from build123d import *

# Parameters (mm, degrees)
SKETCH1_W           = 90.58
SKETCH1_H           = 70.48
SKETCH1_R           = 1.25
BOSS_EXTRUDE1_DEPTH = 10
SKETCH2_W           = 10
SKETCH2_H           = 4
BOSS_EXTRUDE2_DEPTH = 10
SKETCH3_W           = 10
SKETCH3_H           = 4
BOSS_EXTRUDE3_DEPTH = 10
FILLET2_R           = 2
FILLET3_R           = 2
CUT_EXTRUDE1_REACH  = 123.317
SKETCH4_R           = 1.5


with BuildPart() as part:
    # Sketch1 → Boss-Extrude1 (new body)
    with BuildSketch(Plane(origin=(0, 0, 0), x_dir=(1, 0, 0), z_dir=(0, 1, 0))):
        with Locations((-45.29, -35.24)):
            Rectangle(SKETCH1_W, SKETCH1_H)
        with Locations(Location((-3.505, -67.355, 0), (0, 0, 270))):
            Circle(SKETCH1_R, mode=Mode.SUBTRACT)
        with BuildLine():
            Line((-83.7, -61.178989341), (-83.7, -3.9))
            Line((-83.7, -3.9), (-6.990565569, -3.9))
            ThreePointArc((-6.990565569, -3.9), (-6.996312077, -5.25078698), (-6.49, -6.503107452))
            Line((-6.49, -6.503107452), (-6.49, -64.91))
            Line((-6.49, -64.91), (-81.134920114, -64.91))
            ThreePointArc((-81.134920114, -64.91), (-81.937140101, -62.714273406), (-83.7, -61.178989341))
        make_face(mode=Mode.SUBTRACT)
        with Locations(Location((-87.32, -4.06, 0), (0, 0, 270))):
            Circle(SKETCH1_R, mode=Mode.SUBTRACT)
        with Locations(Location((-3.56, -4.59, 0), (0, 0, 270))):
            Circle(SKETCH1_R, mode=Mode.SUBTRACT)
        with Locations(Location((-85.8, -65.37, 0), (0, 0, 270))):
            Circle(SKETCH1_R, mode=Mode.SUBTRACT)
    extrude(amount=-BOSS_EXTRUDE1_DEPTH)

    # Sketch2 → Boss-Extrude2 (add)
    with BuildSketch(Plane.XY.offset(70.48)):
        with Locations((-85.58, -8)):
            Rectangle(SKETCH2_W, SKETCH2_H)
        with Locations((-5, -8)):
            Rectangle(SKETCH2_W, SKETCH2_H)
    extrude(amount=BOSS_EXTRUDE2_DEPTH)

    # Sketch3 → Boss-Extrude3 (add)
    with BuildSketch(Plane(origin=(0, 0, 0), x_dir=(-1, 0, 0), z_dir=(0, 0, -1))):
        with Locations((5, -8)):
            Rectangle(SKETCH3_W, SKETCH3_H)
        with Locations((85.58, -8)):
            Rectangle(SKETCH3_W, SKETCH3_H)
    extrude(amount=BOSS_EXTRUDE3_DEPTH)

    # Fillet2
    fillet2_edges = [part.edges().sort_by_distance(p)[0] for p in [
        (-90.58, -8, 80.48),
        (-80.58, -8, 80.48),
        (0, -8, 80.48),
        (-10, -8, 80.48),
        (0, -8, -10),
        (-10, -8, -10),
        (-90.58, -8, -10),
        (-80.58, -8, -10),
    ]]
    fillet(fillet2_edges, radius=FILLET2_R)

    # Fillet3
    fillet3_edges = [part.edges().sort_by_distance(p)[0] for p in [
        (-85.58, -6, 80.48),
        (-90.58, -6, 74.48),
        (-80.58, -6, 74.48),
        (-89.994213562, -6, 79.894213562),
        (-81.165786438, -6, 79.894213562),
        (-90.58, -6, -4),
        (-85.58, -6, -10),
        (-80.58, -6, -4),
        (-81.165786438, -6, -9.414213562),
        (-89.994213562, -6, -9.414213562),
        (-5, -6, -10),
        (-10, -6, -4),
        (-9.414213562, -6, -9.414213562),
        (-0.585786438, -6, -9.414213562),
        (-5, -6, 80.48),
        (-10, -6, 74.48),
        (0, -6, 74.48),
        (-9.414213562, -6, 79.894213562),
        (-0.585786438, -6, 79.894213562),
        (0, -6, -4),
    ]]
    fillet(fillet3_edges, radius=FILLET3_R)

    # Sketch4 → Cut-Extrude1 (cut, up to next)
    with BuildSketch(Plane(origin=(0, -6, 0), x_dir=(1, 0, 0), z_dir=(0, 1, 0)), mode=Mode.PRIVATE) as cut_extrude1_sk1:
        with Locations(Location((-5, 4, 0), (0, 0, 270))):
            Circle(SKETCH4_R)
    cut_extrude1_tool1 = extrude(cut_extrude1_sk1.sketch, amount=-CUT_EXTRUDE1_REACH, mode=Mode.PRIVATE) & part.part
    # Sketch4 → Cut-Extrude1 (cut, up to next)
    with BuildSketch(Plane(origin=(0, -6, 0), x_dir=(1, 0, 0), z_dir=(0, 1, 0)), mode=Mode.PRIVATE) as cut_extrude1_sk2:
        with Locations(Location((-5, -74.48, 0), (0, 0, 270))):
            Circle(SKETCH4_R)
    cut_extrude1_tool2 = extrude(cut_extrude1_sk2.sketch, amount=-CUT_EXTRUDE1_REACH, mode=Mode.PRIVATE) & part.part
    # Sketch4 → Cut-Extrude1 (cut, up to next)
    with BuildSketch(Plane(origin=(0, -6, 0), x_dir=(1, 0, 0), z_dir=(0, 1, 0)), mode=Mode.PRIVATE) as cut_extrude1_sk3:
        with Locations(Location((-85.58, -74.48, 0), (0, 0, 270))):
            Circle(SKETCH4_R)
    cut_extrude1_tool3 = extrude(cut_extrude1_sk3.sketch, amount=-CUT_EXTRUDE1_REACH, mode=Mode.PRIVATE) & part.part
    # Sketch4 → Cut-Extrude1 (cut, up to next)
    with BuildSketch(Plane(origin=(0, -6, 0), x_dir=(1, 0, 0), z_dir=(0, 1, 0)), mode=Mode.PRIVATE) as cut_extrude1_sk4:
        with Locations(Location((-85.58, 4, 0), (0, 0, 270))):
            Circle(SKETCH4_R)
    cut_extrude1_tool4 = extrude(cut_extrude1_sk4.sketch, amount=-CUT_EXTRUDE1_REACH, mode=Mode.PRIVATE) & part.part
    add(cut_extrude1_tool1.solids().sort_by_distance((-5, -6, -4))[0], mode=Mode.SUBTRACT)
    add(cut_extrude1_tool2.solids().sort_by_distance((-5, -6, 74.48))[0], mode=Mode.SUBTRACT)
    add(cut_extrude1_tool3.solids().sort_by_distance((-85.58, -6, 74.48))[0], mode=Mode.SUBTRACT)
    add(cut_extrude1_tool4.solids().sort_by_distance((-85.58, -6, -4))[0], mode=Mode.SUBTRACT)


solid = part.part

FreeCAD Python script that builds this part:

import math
import FreeCAD as App
import Part
import Sketcher

V = App.Vector


def edges_at(feature, points):
    """Names of the edges that pass closest to the given points."""
    edges = feature.Shape.Edges
    near = lambda p: min(range(len(edges)), key=lambda i: edges[i].distToShape(Part.Vertex(*p))[0])
    return sorted({f"Edge{near(p) + 1}" for p in points})


def add_polygon(sketch, points):
    """Adds a closed chain of lines whose ends are joined by coincident constraints."""
    first, n = sketch.GeometryCount, len(points)
    for a, b in zip(points, points[1:] + points[:1]):
        sketch.addGeometry(Part.LineSegment(App.Vector(*a, 0), App.Vector(*b, 0)), False)
    for i in range(n):
        sketch.addConstraint(Sketcher.Constraint("Coincident", first + i, 2, first + (i + 1) % n, 1))

doc = App.newDocument("Part")
body = doc.addObject("PartDesign::Body", "Body")

# Sketch on XZ plane
sketch1 = body.newObject("Sketcher::SketchObject", "Sketch")
sketch1.AttachmentSupport = (doc.getObject("XZ_Plane"), [""])
sketch1.MapMode = "FlatFace"
add_polygon(sketch1, [(-90.6, 0), (-90.6, 70.5), (0, 70.5), (0, 0)])  # lines 0-3
sketch1.addGeometry(Part.Circle(V(-85.8, 65.4, 0), V(0, 0, 1), 1.2), False)  # 4
sketch1.addGeometry(Part.Circle(V(-3.5, 67.4, 0), V(0, 0, 1), 1.2), False)  # 5
sketch1.addGeometry(Part.Circle(V(-87.3, 4.1, 0), V(0, 0, 1), 1.2), False)  # 6
sketch1.addGeometry(Part.ArcOfCircle(Part.Circle(V(-85.8, 65.4, 0), V(0, 0, 1), 4.7), math.radians(-63), math.radians(-6)), False)  # 7
sketch1.addGeometry(Part.LineSegment(V(-83.7, 61.2, 0), V(-83.7, 3.9, 0)), False)  # 8
sketch1.addGeometry(Part.LineSegment(V(-83.7, 3.9, 0), V(-7, 3.9, 0)), False)  # 9
sketch1.addGeometry(Part.ArcOfCircle(Part.Circle(V(-3.6, 4.6, 0), V(0, 0, 1), 3.5), math.radians(147), math.radians(191)), False)  # 10
sketch1.addGeometry(Part.LineSegment(V(-6.5, 6.5, 0), V(-6.5, 64.9, 0)), False)  # 11
sketch1.addGeometry(Part.LineSegment(V(-6.5, 64.9, 0), V(-81.1, 64.9, 0)), False)  # 12
sketch1.addGeometry(Part.Circle(V(-3.6, 4.6, 0), V(0, 0, 1), 1.2), False)  # 13
sketch1.addConstraint([
    Sketcher.Constraint("Coincident", 7, 1, 8, 1),
    Sketcher.Constraint("Coincident", 8, 2, 9, 1),
    Sketcher.Constraint("Coincident", 9, 2, 10, 2),
    Sketcher.Constraint("Coincident", 10, 1, 11, 1),
    Sketcher.Constraint("Coincident", 11, 2, 12, 1),
    Sketcher.Constraint("Coincident", 12, 2, 7, 2),
    Sketcher.Constraint("Vertical", 0),
    Sketcher.Constraint("Horizontal", 1),
    Sketcher.Constraint("Vertical", 2),
    Sketcher.Constraint("Horizontal", 3),
    Sketcher.Constraint("Vertical", 8),
    Sketcher.Constraint("Horizontal", 9),
    Sketcher.Constraint("Vertical", 11),
    Sketcher.Constraint("Horizontal", 12),
    Sketcher.Constraint("Coincident", 2, 2, -1, 1),
    Sketcher.Constraint("Coincident", 7, 3, 4, 3),
    Sketcher.Constraint("Coincident", 13, 3, 10, 3),
    Sketcher.Constraint("Equal", 4, 5),
    Sketcher.Constraint("Equal", 5, 6),
    Sketcher.Constraint("Equal", 6, 13),
    Sketcher.Constraint("Diameter", 4, 2.5),
    Sketcher.Constraint("DistanceX", 1, 1, 1, 2, 90.58),
    Sketcher.Constraint("DistanceY", 0, 1, 0, 2, 70.48),
    Sketcher.Constraint("DistanceX", 4, 3, -1, 1, 85.8),
    Sketcher.Constraint("DistanceX", 7, 1, -1, 1, 83.7),
    Sketcher.Constraint("DistanceY", -1, 1, 8, 2, 3.9),
    Sketcher.Constraint("DistanceY", -1, 1, 4, 3, 65.37),
    Sketcher.Constraint("DistanceX", 6, 3, -1, 1, 87.32),
    Sketcher.Constraint("DistanceY", -1, 1, 6, 3, 4.06),
    Sketcher.Constraint("DistanceX", 10, 3, -1, 1, 3.56),
    Sketcher.Constraint("DistanceY", -1, 1, 10, 3, 4.59),
    Sketcher.Constraint("DistanceX", 10, 1, -1, 1, 6.49),
    Sketcher.Constraint("DistanceY", -1, 1, 11, 2, 64.91),
    Sketcher.Constraint("Radius", 10, 3.499269),
    Sketcher.Constraint("DistanceX", 5, 3, -1, 1, 3.505),
    Sketcher.Constraint("DistanceY", -1, 1, 5, 3, 67.355),
    Sketcher.Constraint("Radius", 7, 4.687704),
])
pad1 = body.newObject("PartDesign::Pad", "Pad")
pad1.Profile = sketch1
pad1.Length = 10

# Sketch on XY plane
sketch2 = body.newObject("Sketcher::SketchObject", "Sketch001")
sketch2.AttachmentSupport = (doc.getObject("XY_Plane"), [""])
sketch2.MapMode = "FlatFace"
sketch2.AttachmentOffset = App.Placement(V(0, 0, 70.48), App.Rotation())
add_polygon(sketch2, [(-90.6, -6), (-90.6, -10), (-80.6, -10), (-80.6, -6)])  # lines 0-3
add_polygon(sketch2, [(-10, -6), (-10, -10), (0, -10), (0, -6)])  # lines 4-7
sketch2.addConstraint([
    Sketcher.Constraint("Vertical", 0),
    Sketcher.Constraint("Horizontal", 1),
    Sketcher.Constraint("Vertical", 2),
    Sketcher.Constraint("Horizontal", 3),
    Sketcher.Constraint("Vertical", 4),
    Sketcher.Constraint("Horizontal", 5),
    Sketcher.Constraint("Vertical", 6),
    Sketcher.Constraint("Horizontal", 7),
    Sketcher.Constraint("PointOnObject", 5, 2, -2),
    Sketcher.Constraint("Horizontal", 1, 2, 4, 2),
    Sketcher.Constraint("Horizontal", 3, 2, 6, 2),
    Sketcher.Constraint("Equal", 3, 5),
    Sketcher.Constraint("DistanceX", 1, 1, 1, 2, 10.0),
    Sketcher.Constraint("DistanceY", 0, 2, 0, 1, 4.0),
    Sketcher.Constraint("DistanceY", 0, 2, -1, 1, 10.0),
    Sketcher.Constraint("DistanceX", 0, 2, -1, 1, 90.58),
])
pad2 = body.newObject("PartDesign::Pad", "Pad001")
pad2.Profile = sketch2
pad2.Length = 10

# Sketch on XY plane
sketch3 = body.newObject("Sketcher::SketchObject", "Sketch002")
sketch3.AttachmentSupport = (doc.getObject("XY_Plane"), [""])
sketch3.MapMode = "FlatFace"
add_polygon(sketch3, [(0, -6), (0, -10), (-10, -10), (-10, -6)])  # lines 0-3
add_polygon(sketch3, [(-80.6, -6), (-80.6, -10), (-90.6, -10), (-90.6, -6)])  # lines 4-7
sketch3.addConstraint([
    Sketcher.Constraint("Vertical", 0),
    Sketcher.Constraint("Horizontal", 1),
    Sketcher.Constraint("Vertical", 2),
    Sketcher.Constraint("Horizontal", 3),
    Sketcher.Constraint("Vertical", 4),
    Sketcher.Constraint("Horizontal", 5),
    Sketcher.Constraint("Vertical", 6),
    Sketcher.Constraint("Horizontal", 7),
    Sketcher.Constraint("PointOnObject", 0, 2, -2),
    Sketcher.Constraint("Horizontal", 1, 2, 4, 2),
    Sketcher.Constraint("Horizontal", 3, 2, 6, 2),
    Sketcher.Constraint("Equal", 3, 5),
    Sketcher.Constraint("DistanceX", 1, 2, 1, 1, 10.0),
    Sketcher.Constraint("DistanceY", 0, 2, 0, 1, 4.0),
    Sketcher.Constraint("DistanceY", 0, 2, -1, 1, 10.0),
    Sketcher.Constraint("DistanceX", 4, 2, -1, 1, 80.58),
])
pad3 = body.newObject("PartDesign::Pad", "Pad002")
pad3.Profile = sketch3
pad3.Length = 10
pad3.Reversed = True
doc.recompute()

fillet = body.newObject("PartDesign::Fillet", "Fillet")
fillet.Base = (pad3, edges_at(pad3, [
    (-90.58, -8, 80.48),
    (-80.58, -8, 80.48),
    (0, -8, 80.48),
    (-10, -8, 80.48),
    (0, -8, -10),
    (-10, -8, -10),
    (-90.58, -8, -10),
    (-80.58, -8, -10),
]))
fillet.Radius = 2
doc.recompute()

fillet2 = body.newObject("PartDesign::Fillet", "Fillet001")
fillet2.Base = (fillet, edges_at(fillet, [
    (-85.58, -6, 80.48),
    (-90.58, -6, 74.48),
    (-80.58, -6, 74.48),
    (-89.994, -6, 79.894),
    (-81.166, -6, 79.894),
    (-90.58, -6, -4),
    (-85.58, -6, -10),
    (-80.58, -6, -4),
    (-81.166, -6, -9.414),
    (-89.994, -6, -9.414),
    (-5, -6, -10),
    (-10, -6, -4),
    (-9.414, -6, -9.414),
    (-0.586, -6, -9.414),
    (-5, -6, 80.48),
    (-10, -6, 74.48),
    (0, -6, 74.48),
    (-9.414, -6, 79.894),
    (-0.586, -6, 79.894),
    (0, -6, -4),
]))
fillet2.Radius = 2

# Sketch on XZ plane
sketch4 = body.newObject("Sketcher::SketchObject", "Sketch003")
sketch4.AttachmentSupport = (doc.getObject("XZ_Plane"), [""])
sketch4.MapMode = "FlatFace"
sketch4.AttachmentOffset = App.Placement(V(0, 0, 6), App.Rotation())
sketch4.addGeometry(Part.Circle(V(-5, -4, 0), V(0, 0, 1), 1.5), False)
sketch4.addConstraint([
    Sketcher.Constraint("Diameter", 0, 3.0),
    Sketcher.Constraint("DistanceX", 0, 3, -1, 1, 5.0),
    Sketcher.Constraint("DistanceY", 0, 3, -1, 1, 4.0),
])
pocket1 = body.newObject("PartDesign::Pocket", "Pocket")
pocket1.Profile = sketch4
pocket1.Type = "UpToFirst"
pocket1.Reversed = True

# Sketch on XZ plane
sketch5 = body.newObject("Sketcher::SketchObject", "Sketch004")
sketch5.AttachmentSupport = (doc.getObject("XZ_Plane"), [""])
sketch5.MapMode = "FlatFace"
sketch5.AttachmentOffset = App.Placement(V(0, 0, 6), App.Rotation())
sketch5.addGeometry(Part.Circle(V(-5, 74.5, 0), V(0, 0, 1), 1.5), False)
sketch5.addConstraint([
    Sketcher.Constraint("Diameter", 0, 3.0),
    Sketcher.Constraint("DistanceX", 0, 3, -1, 1, 5.0),
    Sketcher.Constraint("DistanceY", -1, 1, 0, 3, 74.48),
])
pocket2 = body.newObject("PartDesign::Pocket", "Pocket001")
pocket2.Profile = sketch5
pocket2.Type = "UpToFirst"
pocket2.Reversed = True

# Sketch on XZ plane
sketch6 = body.newObject("Sketcher::SketchObject", "Sketch005")
sketch6.AttachmentSupport = (doc.getObject("XZ_Plane"), [""])
sketch6.MapMode = "FlatFace"
sketch6.AttachmentOffset = App.Placement(V(0, 0, 6), App.Rotation())
sketch6.addGeometry(Part.Circle(V(-85.6, 74.5, 0), V(0, 0, 1), 1.5), False)
sketch6.addConstraint([
    Sketcher.Constraint("Diameter", 0, 3.0),
    Sketcher.Constraint("DistanceX", 0, 3, -1, 1, 85.58),
    Sketcher.Constraint("DistanceY", -1, 1, 0, 3, 74.48),
])
pocket3 = body.newObject("PartDesign::Pocket", "Pocket002")
pocket3.Profile = sketch6
pocket3.Type = "UpToFirst"
pocket3.Reversed = True

# Sketch on XZ plane
sketch7 = body.newObject("Sketcher::SketchObject", "Sketch006")
sketch7.AttachmentSupport = (doc.getObject("XZ_Plane"), [""])
sketch7.MapMode = "FlatFace"
sketch7.AttachmentOffset = App.Placement(V(0, 0, 6), App.Rotation())
sketch7.addGeometry(Part.Circle(V(-85.6, -4, 0), V(0, 0, 1), 1.5), False)
sketch7.addConstraint([
    Sketcher.Constraint("Diameter", 0, 3.0),
    Sketcher.Constraint("DistanceY", 0, 3, -1, 1, 4.0),
    Sketcher.Constraint("DistanceX", 0, 3, -1, 1, 85.58),
])
pocket4 = body.newObject("PartDesign::Pocket", "Pocket003")
pocket4.Profile = sketch7
pocket4.Type = "UpToFirst"
pocket4.Reversed = True

doc.recompute()
